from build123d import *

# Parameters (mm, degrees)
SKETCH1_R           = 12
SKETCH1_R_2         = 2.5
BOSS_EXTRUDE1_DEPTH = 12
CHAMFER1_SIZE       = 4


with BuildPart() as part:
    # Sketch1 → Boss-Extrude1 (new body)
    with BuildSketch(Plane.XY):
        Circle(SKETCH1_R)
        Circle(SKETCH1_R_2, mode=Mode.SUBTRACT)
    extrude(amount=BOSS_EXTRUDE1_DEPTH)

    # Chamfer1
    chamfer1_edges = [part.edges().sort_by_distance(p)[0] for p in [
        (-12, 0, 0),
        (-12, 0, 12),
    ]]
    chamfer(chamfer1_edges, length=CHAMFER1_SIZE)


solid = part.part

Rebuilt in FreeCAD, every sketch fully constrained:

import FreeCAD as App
import Part
import Sketcher
from FreeCAD import Vector


def edges_at(feature, points):
    """Names of the edges that pass closest to the given points."""
    edges = feature.Shape.Edges
    near = lambda p: min(range(len(edges)), key=lambda i: edges[i].distToShape(Part.Vertex(*p))[0])
    return sorted({f"Edge{near(p) + 1}" for p in points})

doc = App.newDocument("Part")
body = doc.addObject("PartDesign::Body", "Body")

# Sketch on XY plane
sketch1 = body.newObject("Sketcher::SketchObject", "Sketch")
sketch1.AttachmentSupport = (doc.getObject("XY_Plane"), [""])
sketch1.MapMode = "FlatFace"
sketch1.addGeometry(Part.Circle(Vector(0, 0, 0), Vector(0, 0, 1), 12), False)
sketch1.addGeometry(Part.Circle(Vector(0, 0, 0), Vector(0, 0, 1), 2.5), False)
sketch1.addConstraint(Sketcher.Constraint("Coincident", 0, 3, -1, 1))
sketch1.addConstraint(Sketcher.Constraint("Coincident", 1, 3, -1, 1))
sketch1.addConstraint(Sketcher.Constraint("Diameter", 0, 24.0))
sketch1.addConstraint(Sketcher.Constraint("Diameter", 1, 5.0))
pad1 = body.newObject("PartDesign::Pad", "Pad")
pad1.Profile = sketch1
pad1.Length = 12
doc.recompute()

chamfer = body.newObject("PartDesign::Chamfer", "Chamfer")
chamfer.Base = (pad1, edges_at(pad1, [(-12, 0, 0), (-12, 0, 12)]))
chamfer.Size = 4

doc.recompute()
